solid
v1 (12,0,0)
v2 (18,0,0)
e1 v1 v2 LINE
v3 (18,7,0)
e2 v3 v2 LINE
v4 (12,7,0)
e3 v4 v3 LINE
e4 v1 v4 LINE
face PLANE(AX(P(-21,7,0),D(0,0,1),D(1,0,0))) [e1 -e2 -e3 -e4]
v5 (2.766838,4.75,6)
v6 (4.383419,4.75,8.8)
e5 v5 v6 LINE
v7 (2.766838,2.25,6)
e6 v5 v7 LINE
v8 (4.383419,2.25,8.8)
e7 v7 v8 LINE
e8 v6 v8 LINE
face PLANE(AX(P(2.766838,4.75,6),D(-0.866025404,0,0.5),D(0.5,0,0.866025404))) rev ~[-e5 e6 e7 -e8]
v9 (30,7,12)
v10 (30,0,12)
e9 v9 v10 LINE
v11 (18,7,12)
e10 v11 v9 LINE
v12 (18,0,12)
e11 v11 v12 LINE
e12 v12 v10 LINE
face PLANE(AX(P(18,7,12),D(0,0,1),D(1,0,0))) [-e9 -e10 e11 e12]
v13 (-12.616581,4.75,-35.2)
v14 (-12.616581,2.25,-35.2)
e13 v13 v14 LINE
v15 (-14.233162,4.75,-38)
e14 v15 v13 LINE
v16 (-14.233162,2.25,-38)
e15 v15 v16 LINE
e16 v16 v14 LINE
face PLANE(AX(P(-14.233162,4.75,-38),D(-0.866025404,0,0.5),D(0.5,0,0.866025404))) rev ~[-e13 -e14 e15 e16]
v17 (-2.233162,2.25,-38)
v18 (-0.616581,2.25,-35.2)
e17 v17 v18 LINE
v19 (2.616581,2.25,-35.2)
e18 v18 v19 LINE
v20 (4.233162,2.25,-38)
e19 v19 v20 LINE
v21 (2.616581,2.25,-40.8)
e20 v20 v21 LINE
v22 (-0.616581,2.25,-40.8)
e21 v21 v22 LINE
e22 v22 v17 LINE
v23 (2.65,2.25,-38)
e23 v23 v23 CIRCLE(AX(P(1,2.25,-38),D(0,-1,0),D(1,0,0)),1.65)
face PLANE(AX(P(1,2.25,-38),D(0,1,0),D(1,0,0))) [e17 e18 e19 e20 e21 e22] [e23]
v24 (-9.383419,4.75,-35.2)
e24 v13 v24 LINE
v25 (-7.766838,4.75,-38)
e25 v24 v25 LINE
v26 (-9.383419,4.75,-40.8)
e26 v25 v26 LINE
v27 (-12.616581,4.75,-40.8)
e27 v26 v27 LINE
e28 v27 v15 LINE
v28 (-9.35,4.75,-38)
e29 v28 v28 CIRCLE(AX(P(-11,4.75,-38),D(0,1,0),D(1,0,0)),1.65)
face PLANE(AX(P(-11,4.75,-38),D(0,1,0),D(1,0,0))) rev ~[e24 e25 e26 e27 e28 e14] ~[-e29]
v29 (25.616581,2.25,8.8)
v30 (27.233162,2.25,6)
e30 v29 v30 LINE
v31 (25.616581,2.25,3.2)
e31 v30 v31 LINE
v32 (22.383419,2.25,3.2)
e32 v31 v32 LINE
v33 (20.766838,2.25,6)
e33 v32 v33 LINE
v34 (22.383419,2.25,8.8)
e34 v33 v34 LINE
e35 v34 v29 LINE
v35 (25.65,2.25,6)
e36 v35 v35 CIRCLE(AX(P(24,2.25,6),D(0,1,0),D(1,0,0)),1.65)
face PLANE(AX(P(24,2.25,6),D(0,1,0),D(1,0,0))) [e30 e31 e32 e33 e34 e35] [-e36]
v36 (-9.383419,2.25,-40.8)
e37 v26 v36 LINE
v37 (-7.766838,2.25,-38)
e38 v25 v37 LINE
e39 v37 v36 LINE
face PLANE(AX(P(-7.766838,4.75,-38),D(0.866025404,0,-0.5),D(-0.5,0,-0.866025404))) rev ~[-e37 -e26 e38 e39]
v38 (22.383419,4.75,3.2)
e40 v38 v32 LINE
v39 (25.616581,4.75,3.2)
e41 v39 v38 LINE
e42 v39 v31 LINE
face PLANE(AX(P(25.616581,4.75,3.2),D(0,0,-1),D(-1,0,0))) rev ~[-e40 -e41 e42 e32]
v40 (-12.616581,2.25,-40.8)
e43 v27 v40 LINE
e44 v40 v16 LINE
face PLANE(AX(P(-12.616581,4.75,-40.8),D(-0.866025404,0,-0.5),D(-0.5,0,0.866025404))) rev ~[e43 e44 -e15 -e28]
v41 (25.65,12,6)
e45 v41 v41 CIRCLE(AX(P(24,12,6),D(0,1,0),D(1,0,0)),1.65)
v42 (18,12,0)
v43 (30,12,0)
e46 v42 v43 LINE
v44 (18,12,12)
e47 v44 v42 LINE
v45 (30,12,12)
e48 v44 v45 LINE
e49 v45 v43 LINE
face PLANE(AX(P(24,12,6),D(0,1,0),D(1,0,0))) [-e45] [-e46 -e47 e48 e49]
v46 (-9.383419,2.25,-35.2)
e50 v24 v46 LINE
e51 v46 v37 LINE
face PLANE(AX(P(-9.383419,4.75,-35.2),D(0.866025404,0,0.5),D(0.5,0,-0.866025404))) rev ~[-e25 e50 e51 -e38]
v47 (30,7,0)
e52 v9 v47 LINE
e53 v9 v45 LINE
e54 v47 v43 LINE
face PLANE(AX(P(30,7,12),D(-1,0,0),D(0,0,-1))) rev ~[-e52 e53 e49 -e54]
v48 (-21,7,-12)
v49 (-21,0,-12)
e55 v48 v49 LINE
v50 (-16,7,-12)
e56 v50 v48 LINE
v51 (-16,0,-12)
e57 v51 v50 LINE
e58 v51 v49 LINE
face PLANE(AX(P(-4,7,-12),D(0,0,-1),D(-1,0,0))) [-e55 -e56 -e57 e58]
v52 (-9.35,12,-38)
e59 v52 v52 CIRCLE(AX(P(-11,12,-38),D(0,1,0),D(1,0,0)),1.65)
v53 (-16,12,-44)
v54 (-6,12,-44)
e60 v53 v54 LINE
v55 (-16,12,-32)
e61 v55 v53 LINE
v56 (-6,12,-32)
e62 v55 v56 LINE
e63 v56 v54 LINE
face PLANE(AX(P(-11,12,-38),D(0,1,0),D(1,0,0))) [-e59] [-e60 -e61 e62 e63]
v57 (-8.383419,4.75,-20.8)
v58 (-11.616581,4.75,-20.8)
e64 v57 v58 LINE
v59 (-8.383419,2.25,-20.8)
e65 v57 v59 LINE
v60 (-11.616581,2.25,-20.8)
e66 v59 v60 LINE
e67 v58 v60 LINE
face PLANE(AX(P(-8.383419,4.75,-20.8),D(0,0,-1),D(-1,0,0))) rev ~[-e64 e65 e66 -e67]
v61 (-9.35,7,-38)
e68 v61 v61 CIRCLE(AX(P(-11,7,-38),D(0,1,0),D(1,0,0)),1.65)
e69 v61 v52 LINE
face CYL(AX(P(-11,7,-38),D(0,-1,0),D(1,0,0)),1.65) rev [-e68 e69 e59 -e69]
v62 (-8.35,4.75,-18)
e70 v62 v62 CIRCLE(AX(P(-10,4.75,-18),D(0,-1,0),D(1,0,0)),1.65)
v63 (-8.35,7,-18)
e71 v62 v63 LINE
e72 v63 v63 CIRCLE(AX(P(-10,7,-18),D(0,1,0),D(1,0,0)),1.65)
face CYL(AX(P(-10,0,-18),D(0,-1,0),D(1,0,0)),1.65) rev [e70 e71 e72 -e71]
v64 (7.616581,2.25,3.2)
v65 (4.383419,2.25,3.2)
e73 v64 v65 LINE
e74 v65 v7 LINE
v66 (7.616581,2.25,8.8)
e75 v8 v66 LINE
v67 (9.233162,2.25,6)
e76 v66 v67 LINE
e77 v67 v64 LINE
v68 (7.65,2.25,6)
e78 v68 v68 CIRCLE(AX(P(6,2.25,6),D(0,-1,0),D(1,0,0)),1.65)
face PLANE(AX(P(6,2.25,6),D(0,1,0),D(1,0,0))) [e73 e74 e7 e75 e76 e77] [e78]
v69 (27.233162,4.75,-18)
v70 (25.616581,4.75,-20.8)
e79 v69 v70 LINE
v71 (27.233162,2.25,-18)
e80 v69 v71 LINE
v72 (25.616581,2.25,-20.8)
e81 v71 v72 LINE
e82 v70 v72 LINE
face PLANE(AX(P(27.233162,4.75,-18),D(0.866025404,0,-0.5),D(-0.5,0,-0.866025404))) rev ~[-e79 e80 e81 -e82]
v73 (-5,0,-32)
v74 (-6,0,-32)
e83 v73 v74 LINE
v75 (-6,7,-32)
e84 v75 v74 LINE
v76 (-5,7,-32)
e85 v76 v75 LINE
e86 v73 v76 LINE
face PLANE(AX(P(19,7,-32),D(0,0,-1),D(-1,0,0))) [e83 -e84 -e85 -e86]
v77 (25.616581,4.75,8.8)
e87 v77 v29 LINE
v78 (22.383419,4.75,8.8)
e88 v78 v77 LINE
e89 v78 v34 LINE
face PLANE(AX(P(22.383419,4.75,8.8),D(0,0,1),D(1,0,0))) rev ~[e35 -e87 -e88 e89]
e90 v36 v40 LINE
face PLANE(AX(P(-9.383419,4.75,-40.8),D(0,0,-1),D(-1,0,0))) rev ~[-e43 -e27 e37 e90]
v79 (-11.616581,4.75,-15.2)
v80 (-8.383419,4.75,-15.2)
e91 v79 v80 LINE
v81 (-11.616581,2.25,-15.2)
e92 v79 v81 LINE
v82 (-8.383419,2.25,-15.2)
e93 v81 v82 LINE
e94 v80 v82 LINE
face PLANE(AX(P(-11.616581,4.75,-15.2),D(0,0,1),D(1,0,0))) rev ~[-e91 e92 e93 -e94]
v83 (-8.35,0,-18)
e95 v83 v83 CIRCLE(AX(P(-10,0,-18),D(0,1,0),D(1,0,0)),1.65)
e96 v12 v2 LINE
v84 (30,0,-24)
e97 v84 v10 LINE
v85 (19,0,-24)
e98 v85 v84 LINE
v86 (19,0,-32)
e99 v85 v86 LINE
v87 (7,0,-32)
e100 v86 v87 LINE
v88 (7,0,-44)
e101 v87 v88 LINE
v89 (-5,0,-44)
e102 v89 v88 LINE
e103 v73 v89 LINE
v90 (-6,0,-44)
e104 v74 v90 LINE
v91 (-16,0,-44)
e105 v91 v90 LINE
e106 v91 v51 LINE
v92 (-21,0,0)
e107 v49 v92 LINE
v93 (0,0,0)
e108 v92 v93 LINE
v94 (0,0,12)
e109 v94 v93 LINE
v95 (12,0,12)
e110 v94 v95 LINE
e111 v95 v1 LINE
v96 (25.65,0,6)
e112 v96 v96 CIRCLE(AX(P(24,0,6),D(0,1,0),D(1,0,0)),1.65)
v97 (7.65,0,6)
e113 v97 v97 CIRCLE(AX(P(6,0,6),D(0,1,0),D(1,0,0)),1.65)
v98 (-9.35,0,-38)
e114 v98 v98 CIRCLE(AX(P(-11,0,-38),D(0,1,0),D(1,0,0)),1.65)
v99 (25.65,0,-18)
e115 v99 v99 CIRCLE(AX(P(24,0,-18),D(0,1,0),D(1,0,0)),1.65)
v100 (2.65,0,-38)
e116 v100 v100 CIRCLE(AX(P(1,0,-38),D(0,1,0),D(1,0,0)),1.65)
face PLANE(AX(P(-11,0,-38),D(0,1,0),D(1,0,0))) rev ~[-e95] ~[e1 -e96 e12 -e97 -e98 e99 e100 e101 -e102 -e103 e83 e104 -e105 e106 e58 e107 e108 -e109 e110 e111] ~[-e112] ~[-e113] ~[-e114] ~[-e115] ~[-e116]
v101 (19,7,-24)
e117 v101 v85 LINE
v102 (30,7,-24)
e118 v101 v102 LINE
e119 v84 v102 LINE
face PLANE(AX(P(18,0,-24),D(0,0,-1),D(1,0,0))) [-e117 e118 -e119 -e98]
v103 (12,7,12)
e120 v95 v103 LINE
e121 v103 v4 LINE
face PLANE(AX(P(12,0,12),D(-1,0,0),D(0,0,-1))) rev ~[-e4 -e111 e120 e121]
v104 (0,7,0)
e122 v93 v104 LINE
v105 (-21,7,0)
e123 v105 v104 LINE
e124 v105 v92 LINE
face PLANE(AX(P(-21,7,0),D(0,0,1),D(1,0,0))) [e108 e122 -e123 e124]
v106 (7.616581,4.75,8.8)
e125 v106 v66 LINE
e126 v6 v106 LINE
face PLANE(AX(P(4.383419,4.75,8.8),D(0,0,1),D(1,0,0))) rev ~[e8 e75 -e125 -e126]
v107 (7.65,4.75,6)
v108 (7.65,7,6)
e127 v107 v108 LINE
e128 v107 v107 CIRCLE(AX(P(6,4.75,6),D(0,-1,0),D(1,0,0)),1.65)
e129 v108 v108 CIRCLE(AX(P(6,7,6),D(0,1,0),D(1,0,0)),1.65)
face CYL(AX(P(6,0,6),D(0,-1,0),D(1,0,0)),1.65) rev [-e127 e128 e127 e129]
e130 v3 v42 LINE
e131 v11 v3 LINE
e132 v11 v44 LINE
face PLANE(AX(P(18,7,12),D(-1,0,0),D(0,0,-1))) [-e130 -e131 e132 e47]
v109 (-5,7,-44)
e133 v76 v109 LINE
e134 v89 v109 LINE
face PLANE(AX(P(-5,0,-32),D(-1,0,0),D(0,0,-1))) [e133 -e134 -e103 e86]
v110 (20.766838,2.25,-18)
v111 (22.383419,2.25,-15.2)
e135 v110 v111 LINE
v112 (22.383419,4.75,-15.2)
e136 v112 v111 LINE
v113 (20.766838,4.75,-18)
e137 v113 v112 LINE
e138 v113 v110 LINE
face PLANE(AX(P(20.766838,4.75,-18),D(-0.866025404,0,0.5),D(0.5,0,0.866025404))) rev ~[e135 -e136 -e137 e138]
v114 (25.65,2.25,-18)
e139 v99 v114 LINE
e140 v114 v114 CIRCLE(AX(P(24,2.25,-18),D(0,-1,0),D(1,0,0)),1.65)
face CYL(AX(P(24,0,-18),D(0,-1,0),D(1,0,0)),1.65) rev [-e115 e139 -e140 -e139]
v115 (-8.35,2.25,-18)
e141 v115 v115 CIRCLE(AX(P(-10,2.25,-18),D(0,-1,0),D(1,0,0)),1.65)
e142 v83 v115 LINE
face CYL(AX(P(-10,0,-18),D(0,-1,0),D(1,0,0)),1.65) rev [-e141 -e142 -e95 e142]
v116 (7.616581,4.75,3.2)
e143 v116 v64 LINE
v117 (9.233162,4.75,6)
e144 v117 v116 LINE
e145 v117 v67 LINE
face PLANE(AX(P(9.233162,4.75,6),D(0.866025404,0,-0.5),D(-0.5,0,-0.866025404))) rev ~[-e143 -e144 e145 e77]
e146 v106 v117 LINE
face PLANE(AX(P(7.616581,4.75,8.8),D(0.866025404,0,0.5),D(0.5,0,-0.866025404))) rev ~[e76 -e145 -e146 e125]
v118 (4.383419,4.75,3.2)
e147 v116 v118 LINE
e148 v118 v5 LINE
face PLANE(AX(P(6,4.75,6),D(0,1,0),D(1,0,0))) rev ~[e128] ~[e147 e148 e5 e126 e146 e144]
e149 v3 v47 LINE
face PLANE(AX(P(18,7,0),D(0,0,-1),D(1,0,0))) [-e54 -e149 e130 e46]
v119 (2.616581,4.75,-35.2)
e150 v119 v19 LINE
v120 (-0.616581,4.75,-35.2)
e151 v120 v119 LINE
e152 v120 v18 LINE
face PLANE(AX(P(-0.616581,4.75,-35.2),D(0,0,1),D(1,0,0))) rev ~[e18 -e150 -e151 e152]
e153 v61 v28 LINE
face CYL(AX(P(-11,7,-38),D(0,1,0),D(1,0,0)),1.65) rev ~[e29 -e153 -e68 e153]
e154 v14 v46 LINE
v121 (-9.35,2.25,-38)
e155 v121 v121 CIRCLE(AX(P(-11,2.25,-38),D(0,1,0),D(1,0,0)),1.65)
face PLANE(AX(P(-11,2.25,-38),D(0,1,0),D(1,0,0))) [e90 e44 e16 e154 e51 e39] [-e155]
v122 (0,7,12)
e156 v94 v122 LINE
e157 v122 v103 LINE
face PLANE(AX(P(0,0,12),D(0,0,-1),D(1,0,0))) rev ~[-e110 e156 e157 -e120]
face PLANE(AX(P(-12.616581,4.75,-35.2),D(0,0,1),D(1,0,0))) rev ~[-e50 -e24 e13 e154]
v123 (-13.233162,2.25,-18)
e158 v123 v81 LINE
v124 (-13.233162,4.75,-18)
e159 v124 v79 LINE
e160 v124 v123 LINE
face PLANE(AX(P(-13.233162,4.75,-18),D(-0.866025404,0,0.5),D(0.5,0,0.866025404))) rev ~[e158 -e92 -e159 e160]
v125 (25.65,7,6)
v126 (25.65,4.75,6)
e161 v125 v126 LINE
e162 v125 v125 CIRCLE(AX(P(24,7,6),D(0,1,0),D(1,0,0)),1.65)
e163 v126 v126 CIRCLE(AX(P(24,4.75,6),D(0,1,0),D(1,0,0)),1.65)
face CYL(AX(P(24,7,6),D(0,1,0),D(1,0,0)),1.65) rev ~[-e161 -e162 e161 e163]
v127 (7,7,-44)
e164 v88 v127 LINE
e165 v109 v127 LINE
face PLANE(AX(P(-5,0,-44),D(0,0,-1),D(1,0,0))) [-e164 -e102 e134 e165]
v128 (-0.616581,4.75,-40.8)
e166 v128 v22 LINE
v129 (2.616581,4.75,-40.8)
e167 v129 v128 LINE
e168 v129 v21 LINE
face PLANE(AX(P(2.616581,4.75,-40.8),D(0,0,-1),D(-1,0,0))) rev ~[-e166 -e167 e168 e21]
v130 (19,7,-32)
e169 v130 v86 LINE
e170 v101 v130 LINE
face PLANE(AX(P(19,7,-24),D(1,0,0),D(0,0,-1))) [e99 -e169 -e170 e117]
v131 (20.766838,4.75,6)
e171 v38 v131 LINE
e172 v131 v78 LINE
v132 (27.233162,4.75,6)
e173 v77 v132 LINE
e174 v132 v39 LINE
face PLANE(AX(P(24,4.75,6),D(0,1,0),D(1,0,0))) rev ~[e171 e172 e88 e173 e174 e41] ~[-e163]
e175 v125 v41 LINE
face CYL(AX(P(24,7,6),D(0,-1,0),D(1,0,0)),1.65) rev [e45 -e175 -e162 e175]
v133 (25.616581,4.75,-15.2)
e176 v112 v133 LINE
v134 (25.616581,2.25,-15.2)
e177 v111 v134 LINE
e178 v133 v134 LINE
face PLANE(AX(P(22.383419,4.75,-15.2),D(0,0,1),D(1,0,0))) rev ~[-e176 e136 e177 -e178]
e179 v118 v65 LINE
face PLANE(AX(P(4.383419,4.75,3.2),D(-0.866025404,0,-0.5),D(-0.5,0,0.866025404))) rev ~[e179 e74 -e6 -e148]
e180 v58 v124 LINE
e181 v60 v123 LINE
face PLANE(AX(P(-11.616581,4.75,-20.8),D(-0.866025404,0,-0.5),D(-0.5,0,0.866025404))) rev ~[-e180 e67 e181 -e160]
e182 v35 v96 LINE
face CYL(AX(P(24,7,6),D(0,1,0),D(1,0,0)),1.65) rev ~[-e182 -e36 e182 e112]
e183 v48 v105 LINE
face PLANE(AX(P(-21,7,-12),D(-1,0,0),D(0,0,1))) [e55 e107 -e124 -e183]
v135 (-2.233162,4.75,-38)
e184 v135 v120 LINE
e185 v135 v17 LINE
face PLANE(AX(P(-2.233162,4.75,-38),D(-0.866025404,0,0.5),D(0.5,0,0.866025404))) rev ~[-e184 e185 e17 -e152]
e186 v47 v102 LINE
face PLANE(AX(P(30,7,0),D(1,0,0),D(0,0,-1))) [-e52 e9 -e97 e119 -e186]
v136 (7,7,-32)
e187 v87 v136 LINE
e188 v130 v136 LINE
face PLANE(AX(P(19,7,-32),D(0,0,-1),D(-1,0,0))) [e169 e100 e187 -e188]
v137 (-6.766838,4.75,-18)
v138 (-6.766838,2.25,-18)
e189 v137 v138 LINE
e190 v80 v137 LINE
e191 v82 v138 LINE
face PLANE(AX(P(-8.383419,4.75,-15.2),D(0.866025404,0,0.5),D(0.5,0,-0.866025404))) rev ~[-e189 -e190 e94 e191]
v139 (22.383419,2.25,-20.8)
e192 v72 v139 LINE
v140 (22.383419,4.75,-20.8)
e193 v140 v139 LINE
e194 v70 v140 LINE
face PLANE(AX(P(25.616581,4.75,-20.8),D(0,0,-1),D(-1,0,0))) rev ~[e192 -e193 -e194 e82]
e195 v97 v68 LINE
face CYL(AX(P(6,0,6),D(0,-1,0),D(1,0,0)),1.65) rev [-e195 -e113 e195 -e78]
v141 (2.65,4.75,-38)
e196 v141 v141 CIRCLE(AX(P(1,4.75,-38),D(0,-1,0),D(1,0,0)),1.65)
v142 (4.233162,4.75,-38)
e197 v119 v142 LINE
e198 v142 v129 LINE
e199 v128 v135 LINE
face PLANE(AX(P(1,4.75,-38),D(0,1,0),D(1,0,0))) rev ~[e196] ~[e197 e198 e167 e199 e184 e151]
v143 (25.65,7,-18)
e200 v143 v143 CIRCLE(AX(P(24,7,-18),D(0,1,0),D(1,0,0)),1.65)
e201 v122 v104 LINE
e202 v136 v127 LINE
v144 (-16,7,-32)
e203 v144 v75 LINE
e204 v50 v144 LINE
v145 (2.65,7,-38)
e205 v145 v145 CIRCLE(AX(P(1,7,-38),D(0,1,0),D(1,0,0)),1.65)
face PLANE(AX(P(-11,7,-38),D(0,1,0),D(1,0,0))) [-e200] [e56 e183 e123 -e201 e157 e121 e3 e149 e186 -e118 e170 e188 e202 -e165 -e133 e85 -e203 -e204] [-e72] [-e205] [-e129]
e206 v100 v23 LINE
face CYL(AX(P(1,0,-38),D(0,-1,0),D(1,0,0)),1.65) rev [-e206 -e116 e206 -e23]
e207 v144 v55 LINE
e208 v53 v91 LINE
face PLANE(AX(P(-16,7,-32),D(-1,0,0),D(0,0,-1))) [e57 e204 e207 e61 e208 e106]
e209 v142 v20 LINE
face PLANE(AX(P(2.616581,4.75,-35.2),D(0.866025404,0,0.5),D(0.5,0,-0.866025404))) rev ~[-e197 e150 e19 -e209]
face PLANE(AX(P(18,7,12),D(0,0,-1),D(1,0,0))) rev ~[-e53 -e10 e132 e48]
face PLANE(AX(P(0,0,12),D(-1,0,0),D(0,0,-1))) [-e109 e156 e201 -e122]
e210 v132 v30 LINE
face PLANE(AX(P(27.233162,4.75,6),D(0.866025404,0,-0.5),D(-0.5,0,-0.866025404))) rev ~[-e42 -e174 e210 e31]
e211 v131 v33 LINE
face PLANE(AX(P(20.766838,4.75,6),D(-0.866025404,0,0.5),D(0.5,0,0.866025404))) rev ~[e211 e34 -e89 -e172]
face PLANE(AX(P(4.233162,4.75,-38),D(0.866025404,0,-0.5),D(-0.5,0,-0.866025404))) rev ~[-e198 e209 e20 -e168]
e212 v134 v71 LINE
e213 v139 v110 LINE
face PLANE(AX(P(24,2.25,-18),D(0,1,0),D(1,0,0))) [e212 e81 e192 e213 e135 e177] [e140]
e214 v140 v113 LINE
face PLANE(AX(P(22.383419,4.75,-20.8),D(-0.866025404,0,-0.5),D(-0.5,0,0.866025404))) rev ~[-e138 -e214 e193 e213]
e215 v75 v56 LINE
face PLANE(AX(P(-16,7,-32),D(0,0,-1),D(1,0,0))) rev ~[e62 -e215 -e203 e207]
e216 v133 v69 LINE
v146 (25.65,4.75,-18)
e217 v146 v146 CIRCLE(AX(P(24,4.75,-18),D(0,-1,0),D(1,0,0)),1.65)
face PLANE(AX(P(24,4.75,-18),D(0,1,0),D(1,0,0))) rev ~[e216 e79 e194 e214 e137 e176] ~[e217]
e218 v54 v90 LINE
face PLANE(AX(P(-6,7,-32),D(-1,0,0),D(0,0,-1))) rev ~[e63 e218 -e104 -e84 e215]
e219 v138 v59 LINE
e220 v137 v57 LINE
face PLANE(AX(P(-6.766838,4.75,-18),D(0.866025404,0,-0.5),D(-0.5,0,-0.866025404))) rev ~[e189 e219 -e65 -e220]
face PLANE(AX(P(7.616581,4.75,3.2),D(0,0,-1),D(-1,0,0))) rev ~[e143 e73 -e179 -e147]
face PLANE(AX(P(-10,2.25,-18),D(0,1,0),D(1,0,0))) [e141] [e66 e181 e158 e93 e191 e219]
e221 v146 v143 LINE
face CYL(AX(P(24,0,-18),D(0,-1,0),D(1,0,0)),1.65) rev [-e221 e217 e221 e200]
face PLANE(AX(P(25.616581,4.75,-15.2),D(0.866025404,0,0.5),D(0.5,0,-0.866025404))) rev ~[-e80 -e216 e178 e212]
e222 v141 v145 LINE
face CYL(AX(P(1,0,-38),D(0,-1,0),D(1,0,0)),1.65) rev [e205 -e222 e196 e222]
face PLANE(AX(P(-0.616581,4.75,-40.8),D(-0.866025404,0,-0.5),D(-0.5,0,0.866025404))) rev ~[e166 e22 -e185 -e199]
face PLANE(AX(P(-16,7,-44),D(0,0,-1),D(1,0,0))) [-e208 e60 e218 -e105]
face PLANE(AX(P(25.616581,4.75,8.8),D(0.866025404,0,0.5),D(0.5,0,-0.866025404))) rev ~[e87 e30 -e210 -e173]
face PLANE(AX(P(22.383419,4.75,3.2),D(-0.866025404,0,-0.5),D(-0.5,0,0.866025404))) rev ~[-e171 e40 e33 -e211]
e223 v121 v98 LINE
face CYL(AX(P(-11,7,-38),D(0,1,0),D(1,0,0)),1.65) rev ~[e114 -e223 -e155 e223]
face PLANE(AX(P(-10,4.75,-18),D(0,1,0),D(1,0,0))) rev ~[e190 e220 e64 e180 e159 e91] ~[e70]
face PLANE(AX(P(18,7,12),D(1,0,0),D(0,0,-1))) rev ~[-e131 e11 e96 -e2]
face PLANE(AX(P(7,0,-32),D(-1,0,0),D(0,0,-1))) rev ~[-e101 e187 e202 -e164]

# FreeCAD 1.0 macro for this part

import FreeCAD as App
import Part
import Sketcher

V = App.Vector
Q = App.Units.Quantity

doc = App.newDocument("Part")
params = doc.addObject("Spreadsheet::Sheet", "Params")
for row, (alias, value) in enumerate([
    ("sketch1_diameter", "3.3 mm"),
    ("sketch1_width", "12 mm"),
    ("pad1_length", "7 mm"),
    ("sketch2_diameter", "3.3 mm"),
    ("sketch2_width", "12 mm"),
    ("pad2_length", "7 mm"),
    ("sketch3_diameter", "3.3 mm"),
    ("sketch3_width", "12 mm"),
    ("pad3_length", "7 mm"),
    ("sketch4_diameter", "3.3 mm"),
    ("sketch4_width", "12 mm"),
    ("pad4_length", "7 mm"),
    ("pad5_length", "2.5 mm"),
    ("sketch6_width", "12 mm"),
    ("sketch6_width2", "17 mm"),
    ("sketch6_width3", "51 mm"),
    ("sketch6_width4", "1 mm"),
    ("sketch6_height", "8 mm"),
    ("pad6_length", "7 mm"),
    ("sketch7_diameter", "3.3 mm"),
    ("sketch7_width", "10 mm"),
    ("sketch7_width2", "12 mm"),
    ("pad7_length", "7 mm"),
    ("pocket1_length", "2.5 mm"),
    ("sketch9_diameter", "3.3 mm"),
    ("sketch9_width", "10 mm"),
    ("sketch9_width2", "12 mm"),
    ("pad8_length", "5 mm"),
], start=1):
    params.set(f"A{row}", alias)
    params.set(f"B{row}", "=" + value)
    params.setAlias(f"B{row}", alias)

body = doc.addObject("PartDesign::Body", "Body")

# Sketch on XZ plane
sketch1 = body.newObject("Sketcher::SketchObject", "Sketch")
sketch1.AttachmentSupport = (doc.getObject("XZ_Plane"), [""])
sketch1.MapMode = "FlatFace"
sketch1.addGeometry([
    Part.LineSegment(V(-5, -44, 0), V(-5, -32, 0)),  # 0
    Part.LineSegment(V(-5, -32, 0), V(7, -32, 0)),  # 1
    Part.LineSegment(V(7, -32, 0), V(7, -44, 0)),  # 2
    Part.LineSegment(V(7, -44, 0), V(-5, -44, 0)),  # 3
    Part.Circle(V(1, -38, 0), V(0, 0, 1), 1.6),  # 4
], False)
sketch1.addConstraint([
    Sketcher.Constraint("Coincident", 0, 2, 1, 1),
    Sketcher.Constraint("Coincident", 1, 2, 2, 1),
    Sketcher.Constraint("Coincident", 2, 2, 3, 1),
    Sketcher.Constraint("Coincident", 3, 2, 0, 1),
    Sketcher.Constraint("Vertical", 0),
    Sketcher.Constraint("Horizontal", 1),
    Sketcher.Constraint("Vertical", 2),
    Sketcher.Constraint("Horizontal", 3),
    Sketcher.Constraint("Equal", 3, 0),
    Sketcher.Constraint("Diameter", 4, 3.3),
    Sketcher.Constraint("DistanceX", 1, 1, 1, 2, 12.0),
    Sketcher.Constraint("DistanceX", -1, 1, 4, 3, 1.0),
    Sketcher.Constraint("DistanceY", 4, 3, -1, 1, 38.0),
    Sketcher.Constraint("DistanceX", 0, 2, -1, 1, 5.0),
    Sketcher.Constraint("DistanceY", 0, 2, -1, 1, 32.0),
])
sketch1.setExpression("Constraints[9]", "Params.sketch1_diameter")
sketch1.setExpression("Constraints[10]", "Params.sketch1_width")
pad1 = body.newObject("PartDesign::Pad", "Pad")
pad1.Profile = sketch1
pad1.setExpression("Length", "Params.pad1_length")
pad1.Reversed = True
body2 = doc.addObject("PartDesign::Body", "Body001")

# Sketch on XZ plane
sketch2 = body2.newObject("Sketcher::SketchObject", "Sketch001")
sketch2.AttachmentSupport = (doc.getObject("XZ_Plane001"), [""])
sketch2.MapMode = "FlatFace"
sketch2.addGeometry([
    Part.LineSegment(V(0, 0, 0), V(0, 12, 0)),  # 0
    Part.LineSegment(V(0, 12, 0), V(12, 12, 0)),  # 1
    Part.LineSegment(V(12, 12, 0), V(12, 0, 0)),  # 2
    Part.LineSegment(V(12, 0, 0), V(0, 0, 0)),  # 3
    Part.Circle(V(6, 6, 0), V(0, 0, 1), 1.6),  # 4
], False)
sketch2.addConstraint([
    Sketcher.Constraint("Coincident", 0, 2, 1, 1),
    Sketcher.Constraint("Coincident", 1, 2, 2, 1),
    Sketcher.Constraint("Coincident", 2, 2, 3, 1),
    Sketcher.Constraint("Coincident", 3, 2, 0, 1),
    Sketcher.Constraint("Vertical", 0),
    Sketcher.Constraint("Horizontal", 1),
    Sketcher.Constraint("Vertical", 2),
    Sketcher.Constraint("Horizontal", 3),
    Sketcher.Constraint("Coincident", 3, 2, -1, 1),
    Sketcher.Constraint("Equal", 3, 0),
    Sketcher.Constraint("Diameter", 4, 3.3),
    Sketcher.Constraint("DistanceX", 1, 1, 1, 2, 12.0),
    Sketcher.Constraint("DistanceX", -1, 1, 4, 3, 6.0),
    Sketcher.Constraint("DistanceY", -1, 1, 4, 3, 6.0),
])
sketch2.setExpression("Constraints[10]", "Params.sketch2_diameter")
sketch2.setExpression("Constraints[11]", "Params.sketch2_width")
pad2 = body2.newObject("PartDesign::Pad", "Pad001")
pad2.Profile = sketch2
pad2.setExpression("Length", "Params.pad2_length")
pad2.Reversed = True
body3 = doc.addObject("PartDesign::Body", "Body002")

# Sketch on XZ plane
sketch3 = body3.newObject("Sketcher::SketchObject", "Sketch002")
sketch3.AttachmentSupport = (doc.getObject("XZ_Plane002"), [""])
sketch3.MapMode = "FlatFace"
sketch3.addGeometry([
    Part.LineSegment(V(-16, -24, 0), V(-16, -12, 0)),  # 0
    Part.LineSegment(V(-16, -12, 0), V(-4, -12, 0)),  # 1
    Part.LineSegment(V(-4, -12, 0), V(-4, -24, 0)),  # 2
    Part.LineSegment(V(-4, -24, 0), V(-16, -24, 0)),  # 3
    Part.Circle(V(-10, -18, 0), V(0, 0, 1), 1.6),  # 4
], False)
sketch3.addConstraint([
    Sketcher.Constraint("Coincident", 0, 2, 1, 1),
    Sketcher.Constraint("Coincident", 1, 2, 2, 1),
    Sketcher.Constraint("Coincident", 2, 2, 3, 1),
    Sketcher.Constraint("Coincident", 3, 2, 0, 1),
    Sketcher.Constraint("Vertical", 0),
    Sketcher.Constraint("Horizontal", 1),
    Sketcher.Constraint("Vertical", 2),
    Sketcher.Constraint("Horizontal", 3),
    Sketcher.Constraint("Equal", 3, 0),
    Sketcher.Constraint("Diameter", 4, 3.3),
    Sketcher.Constraint("DistanceX", 1, 1, 1, 2, 12.0),
    Sketcher.Constraint("DistanceX", 4, 3, -1, 1, 10.0),
    Sketcher.Constraint("DistanceY", 4, 3, -1, 1, 18.0),
    Sketcher.Constraint("DistanceX", 0, 2, -1, 1, 16.0),
    Sketcher.Constraint("DistanceY", 0, 2, -1, 1, 12.0),
])
sketch3.setExpression("Constraints[9]", "Params.sketch3_diameter")
sketch3.setExpression("Constraints[10]", "Params.sketch3_width")
pad3 = body3.newObject("PartDesign::Pad", "Pad002")
pad3.Profile = sketch3
pad3.setExpression("Length", "Params.pad3_length")
pad3.Reversed = True
body4 = doc.addObject("PartDesign::Body", "Body003")

# Sketch on XZ plane
sketch4 = body4.newObject("Sketcher::SketchObject", "Sketch003")
sketch4.AttachmentSupport = (doc.getObject("XZ_Plane003"), [""])
sketch4.MapMode = "FlatFace"
sketch4.addGeometry([
    Part.LineSegment(V(18, -24, 0), V(18, -12, 0)),  # 0
    Part.LineSegment(V(18, -12, 0), V(30, -12, 0)),  # 1
    Part.LineSegment(V(30, -12, 0), V(30, -24, 0)),  # 2
    Part.LineSegment(V(30, -24, 0), V(18, -24, 0)),  # 3
    Part.Circle(V(24, -18, 0), V(0, 0, 1), 1.6),  # 4
], False)
sketch4.addConstraint([
    Sketcher.Constraint("Coincident", 0, 2, 1, 1),
    Sketcher.Constraint("Coincident", 1, 2, 2, 1),
    Sketcher.Constraint("Coincident", 2, 2, 3, 1),
    Sketcher.Constraint("Coincident", 3, 2, 0, 1),
    Sketcher.Constraint("Vertical", 0),
    Sketcher.Constraint("Horizontal", 1),
    Sketcher.Constraint("Vertical", 2),
    Sketcher.Constraint("Horizontal", 3),
    Sketcher.Constraint("Equal", 3, 0),
    Sketcher.Constraint("Diameter", 4, 3.3),
    Sketcher.Constraint("DistanceX", 1, 1, 1, 2, 12.0),
    Sketcher.Constraint("DistanceX", -1, 1, 4, 3, 24.0),
    Sketcher.Constraint("DistanceY", 4, 3, -1, 1, 18.0),
    Sketcher.Constraint("DistanceX", -1, 1, 0, 2, 18.0),
    Sketcher.Constraint("DistanceY", 0, 2, -1, 1, 12.0),
])
sketch4.setExpression("Constraints[9]", "Params.sketch4_diameter")
sketch4.setExpression("Constraints[10]", "Params.sketch4_width")
pad4 = body4.newObject("PartDesign::Pad", "Pad003")
pad4.Profile = sketch4
pad4.setExpression("Length", "Params.pad4_length")
pad4.Reversed = True
body5 = doc.addObject("PartDesign::Body", "Body004")
body5.AllowCompound = True

# Sketch on XZ plane
sketch5 = body5.newObject("Sketcher::SketchObject", "Sketch004")
sketch5.AttachmentSupport = (doc.getObject("XZ_Plane004"), [""])
sketch5.MapMode = "FlatFace"
sketch5.AttachmentOffset = App.Placement(V(0, 0, -4.75), App.Rotation())
sketch5.addGeometry([
    Part.LineSegment(V(9.2, 6, 0), V(7.6, 3.2, 0)),  # 0
    Part.LineSegment(V(7.6, 3.2, 0), V(4.4, 3.2, 0)),  # 1
    Part.LineSegment(V(4.4, 3.2, 0), V(2.8, 6, 0)),  # 2
    Part.LineSegment(V(2.8, 6, 0), V(4.4, 8.8, 0)),  # 3
    Part.LineSegment(V(4.4, 8.8, 0), V(7.6, 8.8, 0)),  # 4
    Part.LineSegment(V(7.6, 8.8, 0), V(9.2, 6, 0)),  # 5
    Part.LineSegment(V(20.8, -18, 0), V(22.4, -15.2, 0)),  # 6
    Part.LineSegment(V(22.4, -15.2, 0), V(25.6, -15.2, 0)),  # 7
    Part.LineSegment(V(25.6, -15.2, 0), V(27.2, -18, 0)),  # 8
    Part.LineSegment(V(27.2, -18, 0), V(25.6, -20.8, 0)),  # 9
    Part.LineSegment(V(25.6, -20.8, 0), V(22.4, -20.8, 0)),  # 10
    Part.LineSegment(V(22.4, -20.8, 0), V(20.8, -18, 0)),  # 11
    Part.LineSegment(V(-2.2, -38, 0), V(-0.6, -35.2, 0)),  # 12
    Part.LineSegment(V(-0.6, -35.2, 0), V(2.6, -35.2, 0)),  # 13
    Part.LineSegment(V(2.6, -35.2, 0), V(4.2, -38, 0)),  # 14
    Part.LineSegment(V(4.2, -38, 0), V(2.6, -40.8, 0)),  # 15
    Part.LineSegment(V(2.6, -40.8, 0), V(-0.6, -40.8, 0)),  # 16
    Part.LineSegment(V(-0.6, -40.8, 0), V(-2.2, -38, 0)),  # 17
    Part.LineSegment(V(-13.2, -18, 0), V(-11.6, -15.2, 0)),  # 18
    Part.LineSegment(V(-11.6, -15.2, 0), V(-8.4, -15.2, 0)),  # 19
    Part.LineSegment(V(-8.4, -15.2, 0), V(-6.8, -18, 0)),  # 20
    Part.LineSegment(V(-6.8, -18, 0), V(-8.4, -20.8, 0)),  # 21
    Part.LineSegment(V(-8.4, -20.8, 0), V(-11.6, -20.8, 0)),  # 22
    Part.LineSegment(V(-11.6, -20.8, 0), V(-13.2, -18, 0)),  # 23
], False)
sketch5.addConstraint([
    Sketcher.Constraint("Coincident", 0, 2, 1, 1),
    Sketcher.Constraint("Coincident", 1, 2, 2, 1),
    Sketcher.Constraint("Coincident", 2, 2, 3, 1),
    Sketcher.Constraint("Coincident", 3, 2, 4, 1),
    Sketcher.Constraint("Coincident", 4, 2, 5, 1),
    Sketcher.Constraint("Coincident", 5, 2, 0, 1),
    Sketcher.Constraint("Coincident", 6, 2, 7, 1),
    Sketcher.Constraint("Coincident", 7, 2, 8, 1),
    Sketcher.Constraint("Coincident", 8, 2, 9, 1),
    Sketcher.Constraint("Coincident", 9, 2, 10, 1),
    Sketcher.Constraint("Coincident", 10, 2, 11, 1),
    Sketcher.Constraint("Coincident", 11, 2, 6, 1),
    Sketcher.Constraint("Coincident", 12, 2, 13, 1),
    Sketcher.Constraint("Coincident", 13, 2, 14, 1),
    Sketcher.Constraint("Coincident", 14, 2, 15, 1),
    Sketcher.Constraint("Coincident", 15, 2, 16, 1),
    Sketcher.Constraint("Coincident", 16, 2, 17, 1),
    Sketcher.Constraint("Coincident", 17, 2, 12, 1),
    Sketcher.Constraint("Coincident", 18, 2, 19, 1),
    Sketcher.Constraint("Coincident", 19, 2, 20, 1),
    Sketcher.Constraint("Coincident", 20, 2, 21, 1),
    Sketcher.Constraint("Coincident", 21, 2, 22, 1),
    Sketcher.Constraint("Coincident", 22, 2, 23, 1),
    Sketcher.Constraint("Coincident", 23, 2, 18, 1),
    Sketcher.Constraint("Horizontal", 1),
    Sketcher.Constraint("Horizontal", 4),
    Sketcher.Constraint("Horizontal", 7),
    Sketcher.Constraint("Horizontal", 10),
    Sketcher.Constraint("Horizontal", 13),
    Sketcher.Constraint("Horizontal", 16),
    Sketcher.Constraint("Horizontal", 19),
    Sketcher.Constraint("Horizontal", 22),
    Sketcher.Constraint("Parallel", 0, 3),
    Sketcher.Constraint("Parallel", 2, 5),
    Sketcher.Constraint("Parallel", 3, 6),
    Sketcher.Constraint("Parallel", 5, 8),
    Sketcher.Constraint("Parallel", 6, 9),
    Sketcher.Constraint("Parallel", 8, 11),
    Sketcher.Constraint("Parallel", 9, 12),
    Sketcher.Constraint("Parallel", 11, 14),
    Sketcher.Constraint("Parallel", 12, 15),
    Sketcher.Constraint("Parallel", 14, 17),
    Sketcher.Constraint("Parallel", 15, 18),
    Sketcher.Constraint("Parallel", 17, 20),
    Sketcher.Constraint("Parallel", 18, 21),
    Sketcher.Constraint("Parallel", 20, 23),
    Sketcher.Constraint("Horizontal", 2, 2, 5, 2),
    Sketcher.Constraint("Horizontal", 8, 2, 11, 2),
    Sketcher.Constraint("Horizontal", 14, 2, 17, 2),
    Sketcher.Constraint("Horizontal", 7, 2, 18, 2),
    Sketcher.Constraint("Horizontal", 11, 2, 20, 2),
    Sketcher.Constraint("Horizontal", 10, 2, 21, 2),
    Sketcher.Constraint("Horizontal", 20, 2, 23, 2),
    Sketcher.Constraint("Vertical", 1, 2, 3, 2),
    Sketcher.Constraint("Vertical", 0, 2, 4, 2),
    Sketcher.Constraint("Vertical", 7, 2, 9, 2),
    Sketcher.Constraint("Vertical", 13, 2, 15, 2),
    Sketcher.Constraint("Equal", 4, 7),
    Sketcher.Constraint("Equal", 10, 13),
    Sketcher.Constraint("Equal", 16, 19),
    Sketcher.Constraint("Equal", 5, 6),
    Sketcher.Constraint("Equal", 11, 12),
    Sketcher.Constraint("Angle", 0, Q("-120 deg")),
    Sketcher.Constraint("DistanceY", -1, 1, 2, 2, 6.0),
    Sketcher.Constraint("DistanceY", 8, 2, -1, 1, 18.0),
    Sketcher.Constraint("DistanceY", 14, 2, -1, 1, 38.0),
    Sketcher.Constraint("DistanceX", 1, 2, 6, 2, 18.0),
    Sketcher.Constraint("DistanceX", 12, 2, 10, 2, 23.0),
    Sketcher.Constraint("DistanceX", 18, 2, 12, 2, 11.0),
    Sketcher.Constraint("DistanceY", -1, 1, 0, 2, 3.2),
    Sketcher.Constraint("DistanceX", 1, 2, 1, 1, 3.233162),
    Sketcher.Constraint("DistanceX", -1, 1, 0, 2, 7.616581),
])
pad5 = body5.newObject("PartDesign::Pad", "Pad004")
pad5.Profile = sketch5
pad5.setExpression("Length", "Params.pad5_length")
doc.recompute()

body6 = doc.addObject("PartDesign::Body", "Body005")
body6.BaseFeature = body5
boolean = body.newObject("PartDesign::Boolean", "Boolean")
boolean.Type = "Cut"
boolean.addObjects([body6])
doc.recompute()

body7 = doc.addObject("PartDesign::Body", "Body006")
body7.BaseFeature = body5
boolean2 = body2.newObject("PartDesign::Boolean", "Boolean001")
boolean2.Type = "Cut"
boolean2.addObjects([body7])
doc.recompute()

body8 = doc.addObject("PartDesign::Body", "Body007")
body8.BaseFeature = body5
boolean3 = body3.newObject("PartDesign::Boolean", "Boolean002")
boolean3.Type = "Cut"
boolean3.addObjects([body8])
doc.recompute()

boolean4 = body4.newObject("PartDesign::Boolean", "Boolean003")
boolean4.Type = "Cut"
boolean4.addObjects([body5])
body.AllowCompound = True
doc.recompute()

boolean5 = body.newObject("PartDesign::Boolean", "Boolean004")
boolean5.Type = "Fuse"
boolean5.addObjects([body2])
doc.recompute()

boolean6 = body.newObject("PartDesign::Boolean", "Boolean005")
boolean6.Type = "Fuse"
boolean6.addObjects([body3])
doc.recompute()

boolean7 = body.newObject("PartDesign::Boolean", "Boolean006")
boolean7.Type = "Fuse"
boolean7.addObjects([body4])

# Sketch on XZ plane
sketch6 = body.newObject("Sketcher::SketchObject", "Sketch005")
sketch6.AttachmentSupport = (doc.getObject("XZ_Plane"), [""])
sketch6.MapMode = "FlatFace"
sketch6.AttachmentOffset = App.Placement(V(0, 0, -7), App.Rotation())
sketch6.addGeometry([
    Part.LineSegment(V(-16, -24, 0), V(-4, -24, 0)),  # 0
    Part.LineSegment(V(-4, -24, 0), V(-4, -12, 0)),  # 1
    Part.LineSegment(V(-4, -12, 0), V(-21, -12, 0)),  # 2
    Part.LineSegment(V(-21, -12, 0), V(-21, 0, 0)),  # 3
    Part.LineSegment(V(-21, 0, 0), V(30, 0, 0)),  # 4
    Part.LineSegment(V(30, 0, 0), V(30, -12, 0)),  # 5
    Part.LineSegment(V(30, -12, 0), V(18, -12, 0)),  # 6
    Part.LineSegment(V(18, -12, 0), V(18, -24, 0)),  # 7
    Part.LineSegment(V(18, -24, 0), V(19, -24, 0)),  # 8
    Part.LineSegment(V(19, -24, 0), V(19, -32, 0)),  # 9
    Part.LineSegment(V(19, -32, 0), V(-16, -32, 0)),  # 10
    Part.LineSegment(V(-16, -32, 0), V(-16, -24, 0)),  # 11
], False)
sketch6.addConstraint([
    Sketcher.Constraint("Coincident", 0, 2, 1, 1),
    Sketcher.Constraint("Coincident", 1, 2, 2, 1),
    Sketcher.Constraint("Coincident", 2, 2, 3, 1),
    Sketcher.Constraint("Coincident", 3, 2, 4, 1),
    Sketcher.Constraint("Coincident", 4, 2, 5, 1),
    Sketcher.Constraint("Coincident", 5, 2, 6, 1),
    Sketcher.Constraint("Coincident", 6, 2, 7, 1),
    Sketcher.Constraint("Coincident", 7, 2, 8, 1),
    Sketcher.Constraint("Coincident", 8, 2, 9, 1),
    Sketcher.Constraint("Coincident", 9, 2, 10, 1),
    Sketcher.Constraint("Coincident", 10, 2, 11, 1),
    Sketcher.Constraint("Coincident", 11, 2, 0, 1),
    Sketcher.Constraint("Horizontal", 0),
    Sketcher.Constraint("Vertical", 1),
    Sketcher.Constraint("Horizontal", 2),
    Sketcher.Constraint("Vertical", 3),
    Sketcher.Constraint("Horizontal", 4),
    Sketcher.Constraint("Vertical", 5),
    Sketcher.Constraint("Horizontal", 6),
    Sketcher.Constraint("Vertical", 7),
    Sketcher.Constraint("Horizontal", 8),
    Sketcher.Constraint("Vertical", 9),
    Sketcher.Constraint("Horizontal", 10),
    Sketcher.Constraint("Vertical", 11),
    Sketcher.Constraint("PointOnObject", 3, 2, -1),
    Sketcher.Constraint("Horizontal", 2, 2, 5, 2),
    Sketcher.Constraint("Horizontal", 0, 2, 7, 2),
    Sketcher.Constraint("Equal", 0, 6),
    Sketcher.Constraint("Equal", 6, 1),
    Sketcher.Constraint("Equal", 1, 3),
    Sketcher.Constraint("DistanceX", 0, 1, 0, 2, 12.0),
    Sketcher.Constraint("DistanceX", 2, 2, 2, 1, 17.0),
    Sketcher.Constraint("DistanceX", 4, 1, 4, 2, 51.0),
    Sketcher.Constraint("DistanceX", 8, 1, 8, 2, 1.0),
    Sketcher.Constraint("DistanceY", 9, 2, 9, 1, 8.0),
    Sketcher.Constraint("DistanceX", 0, 2, -1, 1, 4.0),
])
sketch6.setExpression("Constraints[30]", "Params.sketch6_width")
sketch6.setExpression("Constraints[31]", "Params.sketch6_width2")
sketch6.setExpression("Constraints[32]", "Params.sketch6_width3")
sketch6.setExpression("Constraints[33]", "Params.sketch6_width4")
sketch6.setExpression("Constraints[34]", "Params.sketch6_height")
pad6 = body.newObject("PartDesign::Pad", "Pad005")
pad6.Profile = sketch6
pad6.setExpression("Length", "Params.pad6_length")

# Sketch on XZ plane
sketch7 = body.newObject("Sketcher::SketchObject", "Sketch006")
sketch7.AttachmentSupport = (doc.getObject("XZ_Plane"), [""])
sketch7.MapMode = "FlatFace"
sketch7.AttachmentOffset = App.Placement(V(0, 0, -7), App.Rotation())
sketch7.addGeometry([
    Part.LineSegment(V(-16, -44, 0), V(-16, -32, 0)),  # 0
    Part.LineSegment(V(-16, -32, 0), V(-6, -32, 0)),  # 1
    Part.LineSegment(V(-6, -32, 0), V(-6, -44, 0)),  # 2
    Part.LineSegment(V(-6, -44, 0), V(-16, -44, 0)),  # 3
    Part.Circle(V(-11, -38, 0), V(0, 0, 1), 1.6),  # 4
    Part.LineSegment(V(18, 0, 0), V(18, 12, 0)),  # 5
    Part.LineSegment(V(18, 12, 0), V(30, 12, 0)),  # 6
    Part.LineSegment(V(30, 12, 0), V(30, 0, 0)),  # 7
    Part.LineSegment(V(30, 0, 0), V(18, 0, 0)),  # 8
    Part.Circle(V(24, 6, 0), V(0, 0, 1), 1.6),  # 9
], False)
sketch7.addConstraint([
    Sketcher.Constraint("Coincident", 0, 2, 1, 1),
    Sketcher.Constraint("Coincident", 1, 2, 2, 1),
    Sketcher.Constraint("Coincident", 2, 2, 3, 1),
    Sketcher.Constraint("Coincident", 3, 2, 0, 1),
    Sketcher.Constraint("Coincident", 5, 2, 6, 1),
    Sketcher.Constraint("Coincident", 6, 2, 7, 1),
    Sketcher.Constraint("Coincident", 7, 2, 8, 1),
    Sketcher.Constraint("Coincident", 8, 2, 5, 1),
    Sketcher.Constraint("Vertical", 0),
    Sketcher.Constraint("Horizontal", 1),
    Sketcher.Constraint("Vertical", 2),
    Sketcher.Constraint("Horizontal", 3),
    Sketcher.Constraint("Vertical", 5),
    Sketcher.Constraint("Horizontal", 6),
    Sketcher.Constraint("Vertical", 7),
    Sketcher.Constraint("Horizontal", 8),
    Sketcher.Constraint("Equal", 4, 9),
    Sketcher.Constraint("PointOnObject", 7, 2, -1),
    Sketcher.Constraint("Equal", 8, 0),
    Sketcher.Constraint("Equal", 2, 5),
    Sketcher.Constraint("Diameter", 4, 3.3),
    Sketcher.Constraint("DistanceX", 1, 1, 1, 2, 10.0),
    Sketcher.Constraint("DistanceX", 6, 1, 6, 2, 12.0),
    Sketcher.Constraint("DistanceX", 4, 3, -1, 1, 11.0),
    Sketcher.Constraint("DistanceY", 4, 3, -1, 1, 38.0),
    Sketcher.Constraint("DistanceX", -1, 1, 9, 3, 24.0),
    Sketcher.Constraint("DistanceY", -1, 1, 9, 3, 6.0),
    Sketcher.Constraint("DistanceX", 0, 2, -1, 1, 16.0),
    Sketcher.Constraint("DistanceY", 0, 2, -1, 1, 32.0),
    Sketcher.Constraint("DistanceX", -1, 1, 5, 2, 18.0),
])
sketch7.setExpression("Constraints[20]", "Params.sketch7_diameter")
sketch7.setExpression("Constraints[21]", "Params.sketch7_width")
sketch7.setExpression("Constraints[22]", "Params.sketch7_width2")
pad7 = body.newObject("PartDesign::Pad", "Pad006")
pad7.Profile = sketch7
pad7.setExpression("Length", "Params.pad7_length")

# Sketch on XZ plane
sketch8 = body.newObject("Sketcher::SketchObject", "Sketch007")
sketch8.AttachmentSupport = (doc.getObject("XZ_Plane"), [""])
sketch8.MapMode = "FlatFace"
sketch8.AttachmentOffset = App.Placement(V(0, 0, -4.75), App.Rotation())
sketch8.addGeometry([
    Part.LineSegment(V(-7.8, -38, 0), V(-9.4, -40.8, 0)),  # 0
    Part.LineSegment(V(-9.4, -40.8, 0), V(-12.6, -40.8, 0)),  # 1
    Part.LineSegment(V(-12.6, -40.8, 0), V(-14.2, -38, 0)),  # 2
    Part.LineSegment(V(-14.2, -38, 0), V(-12.6, -35.2, 0)),  # 3
    Part.LineSegment(V(-12.6, -35.2, 0), V(-9.4, -35.2, 0)),  # 4
    Part.LineSegment(V(-9.4, -35.2, 0), V(-7.8, -38, 0)),  # 5
    Part.LineSegment(V(27.2, 6, 0), V(25.6, 3.2, 0)),  # 6
    Part.LineSegment(V(25.6, 3.2, 0), V(22.4, 3.2, 0)),  # 7
    Part.LineSegment(V(22.4, 3.2, 0), V(20.8, 6, 0)),  # 8
    Part.LineSegment(V(20.8, 6, 0), V(22.4, 8.8, 0)),  # 9
    Part.LineSegment(V(22.4, 8.8, 0), V(25.6, 8.8, 0)),  # 10
    Part.LineSegment(V(25.6, 8.8, 0), V(27.2, 6, 0)),  # 11
], False)
sketch8.addConstraint([
    Sketcher.Constraint("Coincident", 0, 2, 1, 1),
    Sketcher.Constraint("Coincident", 1, 2, 2, 1),
    Sketcher.Constraint("Coincident", 2, 2, 3, 1),
    Sketcher.Constraint("Coincident", 3, 2, 4, 1),
    Sketcher.Constraint("Coincident", 4, 2, 5, 1),
    Sketcher.Constraint("Coincident", 5, 2, 0, 1),
    Sketcher.Constraint("Coincident", 6, 2, 7, 1),
    Sketcher.Constraint("Coincident", 7, 2, 8, 1),
    Sketcher.Constraint("Coincident", 8, 2, 9, 1),
    Sketcher.Constraint("Coincident", 9, 2, 10, 1),
    Sketcher.Constraint("Coincident", 10, 2, 11, 1),
    Sketcher.Constraint("Coincident", 11, 2, 6, 1),
    Sketcher.Constraint("Horizontal", 1),
    Sketcher.Constraint("Horizontal", 4),
    Sketcher.Constraint("Horizontal", 7),
    Sketcher.Constraint("Horizontal", 10),
    Sketcher.Constraint("Parallel", 0, 3),
    Sketcher.Constraint("Parallel", 2, 5),
    Sketcher.Constraint("Parallel", 3, 6),
    Sketcher.Constraint("Parallel", 5, 8),
    Sketcher.Constraint("Parallel", 6, 9),
    Sketcher.Constraint("Parallel", 8, 11),
    Sketcher.Constraint("Horizontal", 2, 2, 5, 2),
    Sketcher.Constraint("Horizontal", 8, 2, 11, 2),
    Sketcher.Constraint("Vertical", 1, 2, 3, 2),
    Sketcher.Constraint("Vertical", 0, 2, 4, 2),
    Sketcher.Constraint("Vertical", 7, 2, 9, 2),
    Sketcher.Constraint("Equal", 4, 7),
    Sketcher.Constraint("Equal", 5, 6),
    Sketcher.Constraint("Angle", 0, Q("-120 deg")),
    Sketcher.Constraint("DistanceY", 2, 2, -1, 1, 38.0),
    Sketcher.Constraint("DistanceY", -1, 1, 8, 2, 6.0),
    Sketcher.Constraint("DistanceX", 4, 2, 6, 2, 35.0),
    Sketcher.Constraint("DistanceY", 0, 2, -1, 1, 40.8),
    Sketcher.Constraint("DistanceX", 1, 2, 1, 1, 3.233162),
    Sketcher.Constraint("DistanceX", 0, 2, -1, 1, 9.383419),
])
pocket1 = body.newObject("PartDesign::Pocket", "Pocket")
pocket1.Profile = sketch8
pocket1.setExpression("Length", "Params.pocket1_length")
pocket1.Reversed = True

# Sketch on XZ plane
sketch9 = body.newObject("Sketcher::SketchObject", "Sketch008")
sketch9.AttachmentSupport = (doc.getObject("XZ_Plane"), [""])
sketch9.MapMode = "FlatFace"
sketch9.AttachmentOffset = App.Placement(V(0, 0, -7), App.Rotation())
sketch9.addGeometry([
    Part.LineSegment(V(-16, -44, 0), V(-16, -32, 0)),  # 0
    Part.LineSegment(V(-16, -32, 0), V(-6, -32, 0)),  # 1
    Part.LineSegment(V(-6, -32, 0), V(-6, -44, 0)),  # 2
    Part.LineSegment(V(-6, -44, 0), V(-16, -44, 0)),  # 3
    Part.Circle(V(-11, -38, 0), V(0, 0, 1), 1.6),  # 4
    Part.LineSegment(V(18, 0, 0), V(18, 12, 0)),  # 5
    Part.LineSegment(V(18, 12, 0), V(30, 12, 0)),  # 6
    Part.LineSegment(V(30, 12, 0), V(30, 0, 0)),  # 7
    Part.LineSegment(V(30, 0, 0), V(18, 0, 0)),  # 8
    Part.Circle(V(24, 6, 0), V(0, 0, 1), 1.6),  # 9
], False)
sketch9.addConstraint([
    Sketcher.Constraint("Coincident", 0, 2, 1, 1),
    Sketcher.Constraint("Coincident", 1, 2, 2, 1),
    Sketcher.Constraint("Coincident", 2, 2, 3, 1),
    Sketcher.Constraint("Coincident", 3, 2, 0, 1),
    Sketcher.Constraint("Coincident", 5, 2, 6, 1),
    Sketcher.Constraint("Coincident", 6, 2, 7, 1),
    Sketcher.Constraint("Coincident", 7, 2, 8, 1),
    Sketcher.Constraint("Coincident", 8, 2, 5, 1),
    Sketcher.Constraint("Vertical", 0),
    Sketcher.Constraint("Horizontal", 1),
    Sketcher.Constraint("Vertical", 2),
    Sketcher.Constraint("Horizontal", 3),
    Sketcher.Constraint("Vertical", 5),
    Sketcher.Constraint("Horizontal", 6),
    Sketcher.Constraint("Vertical", 7),
    Sketcher.Constraint("Horizontal", 8),
    Sketcher.Constraint("Equal", 4, 9),
    Sketcher.Constraint("PointOnObject", 7, 2, -1),
    Sketcher.Constraint("Equal", 8, 0),
    Sketcher.Constraint("Equal", 2, 5),
    Sketcher.Constraint("Diameter", 4, 3.3),
    Sketcher.Constraint("DistanceX", 1, 1, 1, 2, 10.0),
    Sketcher.Constraint("DistanceX", 6, 1, 6, 2, 12.0),
    Sketcher.Constraint("DistanceX", 4, 3, -1, 1, 11.0),
    Sketcher.Constraint("DistanceY", 4, 3, -1, 1, 38.0),
    Sketcher.Constraint("DistanceX", -1, 1, 9, 3, 24.0),
    Sketcher.Constraint("DistanceY", -1, 1, 9, 3, 6.0),
    Sketcher.Constraint("DistanceX", 0, 2, -1, 1, 16.0),
    Sketcher.Constraint("DistanceY", 0, 2, -1, 1, 32.0),
    Sketcher.Constraint("DistanceX", -1, 1, 5, 2, 18.0),
])
sketch9.setExpression("Constraints[20]", "Params.sketch9_diameter")
sketch9.setExpression("Constraints[21]", "Params.sketch9_width")
sketch9.setExpression("Constraints[22]", "Params.sketch9_width2")
pad8 = body.newObject("PartDesign::Pad", "Pad007")
pad8.Profile = sketch9
pad8.setExpression("Length", "Params.pad8_length")
pad8.Reversed = True

doc.recompute()
